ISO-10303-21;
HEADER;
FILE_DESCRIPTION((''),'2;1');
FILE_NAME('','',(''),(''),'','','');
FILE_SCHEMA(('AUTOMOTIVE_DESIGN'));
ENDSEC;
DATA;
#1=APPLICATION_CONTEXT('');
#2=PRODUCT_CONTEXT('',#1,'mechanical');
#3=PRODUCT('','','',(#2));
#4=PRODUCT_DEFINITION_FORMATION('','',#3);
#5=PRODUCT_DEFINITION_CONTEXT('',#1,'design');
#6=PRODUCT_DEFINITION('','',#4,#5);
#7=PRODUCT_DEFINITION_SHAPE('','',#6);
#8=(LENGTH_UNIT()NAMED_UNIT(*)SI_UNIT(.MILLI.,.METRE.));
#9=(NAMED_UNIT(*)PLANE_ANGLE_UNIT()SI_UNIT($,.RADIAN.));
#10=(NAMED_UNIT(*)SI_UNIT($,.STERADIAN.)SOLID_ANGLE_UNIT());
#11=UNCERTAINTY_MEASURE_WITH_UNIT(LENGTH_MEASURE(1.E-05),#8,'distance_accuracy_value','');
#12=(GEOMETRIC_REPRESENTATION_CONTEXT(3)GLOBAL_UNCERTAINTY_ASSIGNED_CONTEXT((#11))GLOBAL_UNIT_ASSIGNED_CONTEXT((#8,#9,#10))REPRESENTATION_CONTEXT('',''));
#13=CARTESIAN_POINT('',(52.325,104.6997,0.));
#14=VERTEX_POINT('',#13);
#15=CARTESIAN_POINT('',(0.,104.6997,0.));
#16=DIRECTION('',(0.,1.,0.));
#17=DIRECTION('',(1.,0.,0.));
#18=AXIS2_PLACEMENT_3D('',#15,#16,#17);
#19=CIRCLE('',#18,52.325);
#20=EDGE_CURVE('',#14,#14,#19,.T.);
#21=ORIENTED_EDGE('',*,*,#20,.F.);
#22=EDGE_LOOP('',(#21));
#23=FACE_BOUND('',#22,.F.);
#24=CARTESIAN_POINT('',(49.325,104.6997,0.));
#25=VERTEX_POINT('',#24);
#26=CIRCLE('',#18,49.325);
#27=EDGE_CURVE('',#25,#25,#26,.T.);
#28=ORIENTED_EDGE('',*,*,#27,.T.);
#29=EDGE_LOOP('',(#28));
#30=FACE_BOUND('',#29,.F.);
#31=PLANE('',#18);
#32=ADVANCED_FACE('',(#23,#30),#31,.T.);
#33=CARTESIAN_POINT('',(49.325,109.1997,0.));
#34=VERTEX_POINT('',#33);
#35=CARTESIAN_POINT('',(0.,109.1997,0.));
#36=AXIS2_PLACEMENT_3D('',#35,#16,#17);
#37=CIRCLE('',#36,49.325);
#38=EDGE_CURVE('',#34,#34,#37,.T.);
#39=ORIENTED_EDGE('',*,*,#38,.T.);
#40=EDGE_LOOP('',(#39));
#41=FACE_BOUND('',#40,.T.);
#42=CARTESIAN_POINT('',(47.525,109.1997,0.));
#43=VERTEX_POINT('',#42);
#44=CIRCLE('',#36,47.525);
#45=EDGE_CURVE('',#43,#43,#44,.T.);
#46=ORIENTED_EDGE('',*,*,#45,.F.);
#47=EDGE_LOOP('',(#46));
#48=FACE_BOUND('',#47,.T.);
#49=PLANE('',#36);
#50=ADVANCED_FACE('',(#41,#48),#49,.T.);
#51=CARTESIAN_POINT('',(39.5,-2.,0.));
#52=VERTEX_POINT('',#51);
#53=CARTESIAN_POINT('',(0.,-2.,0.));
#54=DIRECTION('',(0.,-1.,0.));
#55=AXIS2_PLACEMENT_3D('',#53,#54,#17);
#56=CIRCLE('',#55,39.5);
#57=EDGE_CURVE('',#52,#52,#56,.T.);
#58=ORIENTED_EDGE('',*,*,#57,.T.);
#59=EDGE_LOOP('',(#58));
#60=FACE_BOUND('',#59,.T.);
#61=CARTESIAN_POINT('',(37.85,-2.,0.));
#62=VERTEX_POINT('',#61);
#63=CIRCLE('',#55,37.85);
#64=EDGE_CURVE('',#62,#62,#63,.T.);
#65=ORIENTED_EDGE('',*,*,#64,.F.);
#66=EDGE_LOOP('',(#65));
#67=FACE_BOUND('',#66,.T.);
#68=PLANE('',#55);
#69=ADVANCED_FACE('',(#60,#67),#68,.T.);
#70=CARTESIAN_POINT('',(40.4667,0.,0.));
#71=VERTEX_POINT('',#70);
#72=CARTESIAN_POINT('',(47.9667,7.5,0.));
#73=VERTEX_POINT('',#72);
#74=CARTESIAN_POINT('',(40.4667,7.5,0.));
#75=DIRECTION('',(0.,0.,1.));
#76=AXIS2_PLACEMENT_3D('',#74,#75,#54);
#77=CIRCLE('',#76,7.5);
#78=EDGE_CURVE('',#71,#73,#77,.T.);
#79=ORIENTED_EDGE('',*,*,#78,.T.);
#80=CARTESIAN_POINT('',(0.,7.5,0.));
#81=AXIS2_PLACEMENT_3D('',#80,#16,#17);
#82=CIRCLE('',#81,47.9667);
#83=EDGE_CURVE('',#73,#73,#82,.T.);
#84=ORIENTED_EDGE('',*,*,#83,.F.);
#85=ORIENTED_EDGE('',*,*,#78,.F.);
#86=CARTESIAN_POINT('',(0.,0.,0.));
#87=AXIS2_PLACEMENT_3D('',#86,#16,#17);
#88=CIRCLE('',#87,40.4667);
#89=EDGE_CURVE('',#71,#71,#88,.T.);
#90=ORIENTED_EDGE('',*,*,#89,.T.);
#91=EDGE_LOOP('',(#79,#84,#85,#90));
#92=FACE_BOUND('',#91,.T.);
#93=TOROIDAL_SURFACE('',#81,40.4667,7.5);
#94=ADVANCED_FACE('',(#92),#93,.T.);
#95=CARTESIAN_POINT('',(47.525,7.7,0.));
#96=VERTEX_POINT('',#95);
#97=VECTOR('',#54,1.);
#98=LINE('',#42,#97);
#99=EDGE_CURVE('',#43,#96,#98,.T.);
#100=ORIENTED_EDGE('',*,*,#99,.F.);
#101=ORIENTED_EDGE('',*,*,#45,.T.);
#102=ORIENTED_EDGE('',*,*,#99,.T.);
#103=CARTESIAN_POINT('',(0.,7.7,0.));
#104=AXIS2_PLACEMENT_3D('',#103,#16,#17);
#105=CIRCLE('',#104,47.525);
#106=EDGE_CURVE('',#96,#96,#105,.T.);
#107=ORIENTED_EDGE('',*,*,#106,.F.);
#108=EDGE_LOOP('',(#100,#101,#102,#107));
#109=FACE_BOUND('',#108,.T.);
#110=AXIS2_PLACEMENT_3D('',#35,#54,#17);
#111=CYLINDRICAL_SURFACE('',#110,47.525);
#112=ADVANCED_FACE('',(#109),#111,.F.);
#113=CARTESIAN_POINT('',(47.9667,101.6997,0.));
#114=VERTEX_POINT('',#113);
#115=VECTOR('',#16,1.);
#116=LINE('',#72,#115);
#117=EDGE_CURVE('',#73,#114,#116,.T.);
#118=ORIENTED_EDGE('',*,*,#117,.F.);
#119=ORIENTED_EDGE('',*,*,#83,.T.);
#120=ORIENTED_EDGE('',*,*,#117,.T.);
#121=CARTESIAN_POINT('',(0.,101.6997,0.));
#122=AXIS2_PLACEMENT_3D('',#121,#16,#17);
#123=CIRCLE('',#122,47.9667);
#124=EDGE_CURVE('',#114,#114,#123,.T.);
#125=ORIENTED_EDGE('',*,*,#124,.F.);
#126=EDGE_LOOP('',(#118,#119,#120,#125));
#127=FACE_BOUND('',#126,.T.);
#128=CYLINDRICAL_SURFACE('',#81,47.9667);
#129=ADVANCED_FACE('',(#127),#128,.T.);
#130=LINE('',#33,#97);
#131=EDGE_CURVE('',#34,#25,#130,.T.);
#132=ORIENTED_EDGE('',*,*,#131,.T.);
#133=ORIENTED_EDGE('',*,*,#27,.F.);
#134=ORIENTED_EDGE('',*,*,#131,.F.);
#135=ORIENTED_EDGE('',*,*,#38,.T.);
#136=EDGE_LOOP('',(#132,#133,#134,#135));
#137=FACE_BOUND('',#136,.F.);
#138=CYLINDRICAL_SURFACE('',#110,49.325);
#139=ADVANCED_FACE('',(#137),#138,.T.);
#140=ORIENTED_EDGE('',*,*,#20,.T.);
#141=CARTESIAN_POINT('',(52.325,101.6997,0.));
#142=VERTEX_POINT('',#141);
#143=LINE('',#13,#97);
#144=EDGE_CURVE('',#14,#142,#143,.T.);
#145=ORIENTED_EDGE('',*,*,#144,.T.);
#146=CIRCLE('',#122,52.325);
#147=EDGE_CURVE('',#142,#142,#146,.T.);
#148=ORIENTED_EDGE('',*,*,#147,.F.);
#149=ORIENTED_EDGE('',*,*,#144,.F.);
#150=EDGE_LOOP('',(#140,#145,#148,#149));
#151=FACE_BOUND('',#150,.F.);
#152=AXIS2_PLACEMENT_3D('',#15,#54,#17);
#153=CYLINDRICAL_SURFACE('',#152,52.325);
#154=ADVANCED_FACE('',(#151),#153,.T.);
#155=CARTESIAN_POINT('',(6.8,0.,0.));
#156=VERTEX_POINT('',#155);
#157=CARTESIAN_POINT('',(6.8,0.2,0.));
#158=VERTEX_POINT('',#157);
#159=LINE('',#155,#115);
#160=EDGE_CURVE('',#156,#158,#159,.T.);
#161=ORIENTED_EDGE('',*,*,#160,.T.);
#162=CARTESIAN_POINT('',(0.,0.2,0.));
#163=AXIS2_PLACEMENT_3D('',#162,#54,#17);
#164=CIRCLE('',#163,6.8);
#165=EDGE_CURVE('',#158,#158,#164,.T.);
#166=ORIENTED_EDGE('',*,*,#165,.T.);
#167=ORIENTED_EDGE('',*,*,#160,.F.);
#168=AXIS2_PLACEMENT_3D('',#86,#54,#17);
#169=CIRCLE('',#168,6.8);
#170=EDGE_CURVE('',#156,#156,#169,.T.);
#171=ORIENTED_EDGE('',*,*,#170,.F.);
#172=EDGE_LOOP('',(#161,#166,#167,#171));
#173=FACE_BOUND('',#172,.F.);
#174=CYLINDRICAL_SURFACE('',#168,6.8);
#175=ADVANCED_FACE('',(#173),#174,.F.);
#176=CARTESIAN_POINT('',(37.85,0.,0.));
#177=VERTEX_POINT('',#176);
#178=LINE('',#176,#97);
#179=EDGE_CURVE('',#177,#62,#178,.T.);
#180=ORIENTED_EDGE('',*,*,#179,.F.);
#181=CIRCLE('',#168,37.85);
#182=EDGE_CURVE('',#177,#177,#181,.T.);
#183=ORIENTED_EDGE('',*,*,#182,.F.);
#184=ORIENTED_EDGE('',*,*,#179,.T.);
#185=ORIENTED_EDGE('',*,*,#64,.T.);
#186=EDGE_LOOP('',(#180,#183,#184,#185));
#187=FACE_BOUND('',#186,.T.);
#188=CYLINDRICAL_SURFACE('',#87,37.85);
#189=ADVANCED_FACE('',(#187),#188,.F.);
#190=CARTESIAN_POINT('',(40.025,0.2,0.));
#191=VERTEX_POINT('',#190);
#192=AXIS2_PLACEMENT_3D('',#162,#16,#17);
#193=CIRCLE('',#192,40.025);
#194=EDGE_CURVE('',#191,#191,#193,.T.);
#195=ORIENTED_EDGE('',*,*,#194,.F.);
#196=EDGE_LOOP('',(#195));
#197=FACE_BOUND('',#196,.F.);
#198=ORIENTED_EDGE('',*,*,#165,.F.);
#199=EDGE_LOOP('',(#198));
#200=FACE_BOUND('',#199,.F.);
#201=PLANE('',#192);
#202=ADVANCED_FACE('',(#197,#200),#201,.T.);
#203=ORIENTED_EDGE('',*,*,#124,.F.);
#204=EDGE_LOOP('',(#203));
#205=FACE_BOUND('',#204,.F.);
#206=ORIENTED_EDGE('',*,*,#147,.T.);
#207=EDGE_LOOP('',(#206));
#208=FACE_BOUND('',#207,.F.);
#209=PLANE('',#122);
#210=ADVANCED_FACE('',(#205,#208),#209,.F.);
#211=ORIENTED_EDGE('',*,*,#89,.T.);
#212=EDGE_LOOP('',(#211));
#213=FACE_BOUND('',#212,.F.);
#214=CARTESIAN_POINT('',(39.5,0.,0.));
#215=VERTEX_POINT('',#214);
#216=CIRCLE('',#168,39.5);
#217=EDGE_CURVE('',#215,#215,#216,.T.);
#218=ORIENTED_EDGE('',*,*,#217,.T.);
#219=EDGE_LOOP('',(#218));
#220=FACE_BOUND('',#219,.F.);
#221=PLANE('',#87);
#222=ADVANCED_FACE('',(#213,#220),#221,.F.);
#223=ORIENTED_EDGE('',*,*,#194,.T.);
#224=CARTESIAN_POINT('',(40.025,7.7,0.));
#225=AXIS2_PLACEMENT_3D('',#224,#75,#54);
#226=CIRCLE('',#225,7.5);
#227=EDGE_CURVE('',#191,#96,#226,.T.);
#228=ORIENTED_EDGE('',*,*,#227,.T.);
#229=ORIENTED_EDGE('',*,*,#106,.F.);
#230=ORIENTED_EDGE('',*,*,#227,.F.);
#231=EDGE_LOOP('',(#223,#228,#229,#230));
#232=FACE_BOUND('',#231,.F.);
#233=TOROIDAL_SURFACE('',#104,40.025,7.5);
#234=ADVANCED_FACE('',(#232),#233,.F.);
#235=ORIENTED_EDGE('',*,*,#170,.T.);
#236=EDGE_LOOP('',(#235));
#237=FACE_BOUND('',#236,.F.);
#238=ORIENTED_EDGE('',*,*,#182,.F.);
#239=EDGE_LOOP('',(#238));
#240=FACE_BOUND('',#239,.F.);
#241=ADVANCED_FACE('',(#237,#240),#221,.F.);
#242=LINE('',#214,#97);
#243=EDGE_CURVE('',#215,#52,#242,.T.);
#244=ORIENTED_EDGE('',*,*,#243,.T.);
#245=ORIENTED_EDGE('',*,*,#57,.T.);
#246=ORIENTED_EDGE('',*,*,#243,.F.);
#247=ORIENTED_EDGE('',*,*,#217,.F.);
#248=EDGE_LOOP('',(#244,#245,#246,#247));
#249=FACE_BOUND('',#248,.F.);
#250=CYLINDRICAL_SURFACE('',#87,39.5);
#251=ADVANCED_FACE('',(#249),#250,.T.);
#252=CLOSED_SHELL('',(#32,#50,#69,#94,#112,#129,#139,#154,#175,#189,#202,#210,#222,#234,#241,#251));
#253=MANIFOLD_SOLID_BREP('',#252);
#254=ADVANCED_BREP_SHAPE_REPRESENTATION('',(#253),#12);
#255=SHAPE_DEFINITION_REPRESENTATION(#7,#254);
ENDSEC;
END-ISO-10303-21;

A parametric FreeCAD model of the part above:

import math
import FreeCAD as App
import Part
import Sketcher
from FreeCAD import Vector

doc = App.newDocument("Part")
body = doc.addObject("PartDesign::Body", "Body")

# Sketch on XY plane
sketch1 = doc.addObject("Sketcher::SketchObject", "Sketch")
body.addObject(sketch1)
sketch1.AttachmentSupport = (doc.XY_Plane, [""])
sketch1.MapMode = "FlatFace"
sketch1.addGeometry(Part.ArcOfCircle(Part.Circle(Vector(40.4667, 7.5, 0), Vector(0, 0, 1), 7.5), math.radians(-90), math.radians(0)), False)
sketch1.addGeometry(Part.LineSegment(Vector(47.9667, 7.5, 0), Vector(47.9667, 101.6997, 0)), False)
sketch1.addGeometry(Part.LineSegment(Vector(47.9667, 101.6997, 0), Vector(52.325, 101.6997, 0)), False)
sketch1.addGeometry(Part.LineSegment(Vector(52.325, 101.6997, 0), Vector(52.325, 104.6997, 0)), False)
sketch1.addGeometry(Part.LineSegment(Vector(52.325, 104.6997, 0), Vector(49.325, 104.6997, 0)), False)
sketch1.addGeometry(Part.LineSegment(Vector(49.325, 104.6997, 0), Vector(49.325, 109.1997, 0)), False)
sketch1.addGeometry(Part.LineSegment(Vector(49.325, 109.1997, 0), Vector(47.525, 109.1997, 0)), False)
sketch1.addGeometry(Part.LineSegment(Vector(47.525, 109.1997, 0), Vector(47.525, 7.7, 0)), False)
sketch1.addGeometry(Part.ArcOfCircle(Part.Circle(Vector(40.025, 7.7, 0), Vector(0, 0, 1), 7.5), math.radians(-90), math.radians(0)), False)
sketch1.addGeometry(Part.LineSegment(Vector(40.025, 0.2, 0), Vector(0, 0.2, 0)), False)
sketch1.addGeometry(Part.LineSegment(Vector(0, 0.2, 0), Vector(0, 0, 0)), False)
sketch1.addGeometry(Part.LineSegment(Vector(0, 0, 0), Vector(40.4667, 0, 0)), False)
sketch1.addConstraint(Sketcher.Constraint("Tangent", 0, 2, 1, 1))
sketch1.addConstraint(Sketcher.Constraint("Coincident", 1, 2, 2, 1))
sketch1.addConstraint(Sketcher.Constraint("Coincident", 2, 2, 3, 1))
sketch1.addConstraint(Sketcher.Constraint("Coincident", 3, 2, 4, 1))
sketch1.addConstraint(Sketcher.Constraint("Coincident", 4, 2, 5, 1))
sketch1.addConstraint(Sketcher.Constraint("Coincident", 5, 2, 6, 1))
sketch1.addConstraint(Sketcher.Constraint("Coincident", 6, 2, 7, 1))
sketch1.addConstraint(Sketcher.Constraint("Tangent", 7, 2, 8, 2))
sketch1.addConstraint(Sketcher.Constraint("Tangent", 8, 1, 9, 1))
sketch1.addConstraint(Sketcher.Constraint("Coincident", 9, 2, 10, 1))
sketch1.addConstraint(Sketcher.Constraint("Coincident", 10, 2, 11, 1))
sketch1.addConstraint(Sketcher.Constraint("Tangent", 11, 2, 0, 1))
sketch1.addConstraint(Sketcher.Constraint("Vertical", 1))
sketch1.addConstraint(Sketcher.Constraint("Horizontal", 2))
sketch1.addConstraint(Sketcher.Constraint("Vertical", 3))
sketch1.addConstraint(Sketcher.Constraint("Horizontal", 4))
sketch1.addConstraint(Sketcher.Constraint("Vertical", 5))
sketch1.addConstraint(Sketcher.Constraint("Horizontal", 6))
sketch1.addConstraint(Sketcher.Constraint("Vertical", 7))
sketch1.addConstraint(Sketcher.Constraint("Horizontal", 9))
sketch1.addConstraint(Sketcher.Constraint("Vertical", 10))
sketch1.addConstraint(Sketcher.Constraint("Horizontal", 11))
sketch1.addConstraint(Sketcher.Constraint("Coincident", 10, 2, -1, 1))
sketch1.addConstraint(Sketcher.Constraint("Equal", 0, 8))
sketch1.addConstraint(Sketcher.Constraint("Equal", 4, 3))
sketch1.addConstraint(Sketcher.Constraint("Radius", 0, 7.5))
sketch1.addConstraint(Sketcher.Constraint("DistanceX", 4, 2, 4, 1, 3.0))
sketch1.addConstraint(Sketcher.Constraint("DistanceX", 6, 2, 6, 1, 1.8))
sketch1.addConstraint(Sketcher.Constraint("DistanceY", 5, 1, 5, 2, 4.5))
sketch1.addConstraint(Sketcher.Constraint("DistanceY", 10, 2, 10, 1, 0.2))
sketch1.addConstraint(Sketcher.Constraint("DistanceY", -1, 1, 5, 2, 109.1997))
sketch1.addConstraint(Sketcher.Constraint("DistanceX", 9, 2, 9, 1, 40.025))
sketch1.addConstraint(Sketcher.Constraint("DistanceX", 2, 1, 2, 2, 4.3583))
revolution = doc.addObject("PartDesign::Revolution", "Revolution")
body.addObject(revolution)
revolution.Profile = sketch1
revolution.ReferenceAxis = (sketch1, ["V_Axis"])
revolution.Angle = 360

# Sketch on XZ plane
sketch2 = doc.addObject("Sketcher::SketchObject", "Sketch001")
body.addObject(sketch2)
sketch2.AttachmentSupport = (doc.XZ_Plane, [""])
sketch2.MapMode = "FlatFace"
sketch2.addGeometry(Part.Circle(Vector(0, 0, 0), Vector(0, 0, 1), 6.8), False)
sketch2.addConstraint(Sketcher.Constraint("Coincident", 0, 3, -1, 1))
sketch2.addConstraint(Sketcher.Constraint("Diameter", 0, 13.6))
pocket1 = doc.addObject("PartDesign::Pocket", "Pocket")
body.addObject(pocket1)
pocket1.Profile = sketch2
pocket1.Length = 1

# Sketch on XZ plane
sketch3 = doc.addObject("Sketcher::SketchObject", "Sketch002")
body.addObject(sketch3)
sketch3.AttachmentSupport = (doc.XZ_Plane, [""])
sketch3.MapMode = "FlatFace"
sketch3.addGeometry(Part.Circle(Vector(0, 0, 0), Vector(0, 0, 1), 39.5), False)
sketch3.addGeometry(Part.Circle(Vector(0, 0, 0), Vector(0, 0, 1), 37.85), False)
sketch3.addConstraint(Sketcher.Constraint("Coincident", 0, 3, -1, 1))
sketch3.addConstraint(Sketcher.Constraint("Coincident", 1, 3, -1, 1))
sketch3.addConstraint(Sketcher.Constraint("Diameter", 0, 79.0))
sketch3.addConstraint(Sketcher.Constraint("Diameter", 1, 75.7))
pad1 = doc.addObject("PartDesign::Pad", "Pad")
body.addObject(pad1)
pad1.Profile = sketch3
pad1.Length = 2

doc.recompute()
